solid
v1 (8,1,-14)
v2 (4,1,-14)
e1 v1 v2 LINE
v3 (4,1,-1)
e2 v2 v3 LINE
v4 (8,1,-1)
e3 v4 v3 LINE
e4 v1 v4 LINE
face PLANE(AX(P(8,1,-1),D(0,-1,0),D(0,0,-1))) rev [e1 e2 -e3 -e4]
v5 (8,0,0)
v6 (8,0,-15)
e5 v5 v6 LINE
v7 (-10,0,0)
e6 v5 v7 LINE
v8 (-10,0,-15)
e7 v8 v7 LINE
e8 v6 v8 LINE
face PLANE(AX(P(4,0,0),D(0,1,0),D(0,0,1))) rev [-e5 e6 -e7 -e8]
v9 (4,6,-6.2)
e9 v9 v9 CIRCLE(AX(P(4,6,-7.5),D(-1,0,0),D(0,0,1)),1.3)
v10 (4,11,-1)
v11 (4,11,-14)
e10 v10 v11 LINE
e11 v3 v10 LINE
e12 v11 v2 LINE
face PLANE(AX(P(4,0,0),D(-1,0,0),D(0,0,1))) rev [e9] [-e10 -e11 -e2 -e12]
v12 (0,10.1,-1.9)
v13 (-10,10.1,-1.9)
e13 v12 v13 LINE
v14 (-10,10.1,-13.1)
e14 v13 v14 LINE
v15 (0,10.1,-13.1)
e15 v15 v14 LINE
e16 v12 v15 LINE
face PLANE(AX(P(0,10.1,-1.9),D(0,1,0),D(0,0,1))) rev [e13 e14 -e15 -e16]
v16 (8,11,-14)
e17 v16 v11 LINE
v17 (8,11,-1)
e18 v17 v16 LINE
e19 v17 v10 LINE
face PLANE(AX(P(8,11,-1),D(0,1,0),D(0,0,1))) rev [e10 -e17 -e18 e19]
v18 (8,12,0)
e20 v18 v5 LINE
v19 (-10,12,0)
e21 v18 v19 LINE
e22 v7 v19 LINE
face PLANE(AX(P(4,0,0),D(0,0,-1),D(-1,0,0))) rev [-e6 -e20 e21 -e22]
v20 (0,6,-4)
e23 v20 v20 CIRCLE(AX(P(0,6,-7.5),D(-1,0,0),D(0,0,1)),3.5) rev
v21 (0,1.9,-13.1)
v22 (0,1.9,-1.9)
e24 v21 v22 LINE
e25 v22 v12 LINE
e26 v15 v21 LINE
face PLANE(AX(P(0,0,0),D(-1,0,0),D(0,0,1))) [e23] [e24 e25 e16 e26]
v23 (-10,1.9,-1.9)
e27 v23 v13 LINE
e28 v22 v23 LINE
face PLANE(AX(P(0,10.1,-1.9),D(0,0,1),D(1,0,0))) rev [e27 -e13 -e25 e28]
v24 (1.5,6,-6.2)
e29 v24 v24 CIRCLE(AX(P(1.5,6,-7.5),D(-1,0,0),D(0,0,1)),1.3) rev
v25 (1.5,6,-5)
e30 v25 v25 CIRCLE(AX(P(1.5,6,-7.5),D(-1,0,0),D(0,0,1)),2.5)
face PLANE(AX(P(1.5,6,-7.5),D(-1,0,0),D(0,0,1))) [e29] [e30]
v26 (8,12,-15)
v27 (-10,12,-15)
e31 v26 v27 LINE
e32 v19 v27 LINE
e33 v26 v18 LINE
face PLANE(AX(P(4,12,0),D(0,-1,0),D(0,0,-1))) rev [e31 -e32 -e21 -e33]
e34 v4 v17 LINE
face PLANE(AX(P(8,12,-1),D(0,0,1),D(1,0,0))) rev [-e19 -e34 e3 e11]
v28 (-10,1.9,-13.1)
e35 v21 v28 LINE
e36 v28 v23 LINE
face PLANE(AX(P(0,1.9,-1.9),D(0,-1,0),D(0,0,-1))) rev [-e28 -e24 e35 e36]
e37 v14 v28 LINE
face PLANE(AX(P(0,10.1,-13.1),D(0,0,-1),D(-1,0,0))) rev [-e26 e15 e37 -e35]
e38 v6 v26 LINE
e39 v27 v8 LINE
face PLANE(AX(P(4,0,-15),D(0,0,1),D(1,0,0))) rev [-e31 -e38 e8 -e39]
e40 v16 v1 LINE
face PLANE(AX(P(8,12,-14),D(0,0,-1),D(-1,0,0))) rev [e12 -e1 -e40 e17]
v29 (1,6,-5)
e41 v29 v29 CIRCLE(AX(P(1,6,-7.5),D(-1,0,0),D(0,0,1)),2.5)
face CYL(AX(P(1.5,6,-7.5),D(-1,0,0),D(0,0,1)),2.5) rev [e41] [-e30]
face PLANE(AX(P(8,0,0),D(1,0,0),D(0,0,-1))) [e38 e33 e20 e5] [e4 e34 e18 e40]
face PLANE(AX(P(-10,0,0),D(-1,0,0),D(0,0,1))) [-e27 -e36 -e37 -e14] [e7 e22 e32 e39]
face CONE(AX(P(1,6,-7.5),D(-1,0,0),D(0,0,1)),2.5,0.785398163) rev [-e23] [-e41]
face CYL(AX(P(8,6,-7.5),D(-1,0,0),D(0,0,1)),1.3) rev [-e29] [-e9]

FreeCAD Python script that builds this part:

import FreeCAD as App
import Part
import Sketcher
from FreeCAD import Vector
Q = App.Units.Quantity


def edges_at(feature, points):
    """Names of the edges that pass closest to the given points."""
    edges = feature.Shape.Edges
    near = lambda p: min(range(len(edges)), key=lambda i: edges[i].distToShape(Part.Vertex(*p))[0])
    return sorted({f"Edge{near(p) + 1}" for p in points})


def add_polygon(sketch, points):
    """Adds a closed chain of lines whose ends are joined by coincident constraints."""
    first, n = sketch.GeometryCount, len(points)
    for a, b in zip(points, points[1:] + points[:1]):
        sketch.addGeometry(Part.LineSegment(App.Vector(*a, 0), App.Vector(*b, 0)), False)
    for i in range(n):
        sketch.addConstraint(Sketcher.Constraint("Coincident", first + i, 2, first + (i + 1) % n, 1))

doc = App.newDocument("Part")
body = doc.addObject("PartDesign::Body", "Body")

# Sketch on YZ plane
sketch1 = doc.addObject("Sketcher::SketchObject", "Sketch")
body.addObject(sketch1)
sketch1.AttachmentSupport = (doc.YZ_Plane, [""])
sketch1.MapMode = "FlatFace"
add_polygon(sketch1, [(12, 0), (0, 0), (0, -15), (12, -15)])  # lines 0-3
sketch1.addConstraint(Sketcher.Constraint("Horizontal", 0))
sketch1.addConstraint(Sketcher.Constraint("Vertical", 1))
sketch1.addConstraint(Sketcher.Constraint("Horizontal", 2))
sketch1.addConstraint(Sketcher.Constraint("Vertical", 3))
sketch1.addConstraint(Sketcher.Constraint("Coincident", 0, 2, -1, 1))
sketch1.addConstraint(Sketcher.Constraint("DistanceX", 0, 2, 0, 1, Q("12 mm")))
sketch1.addConstraint(Sketcher.Constraint("DistanceY", 1, 2, 1, 1, Q("15 mm")))
pad1 = doc.addObject("PartDesign::Pad", "Pad")
body.addObject(pad1)
pad1.Profile = sketch1
pad1.Length = 4

# Sketch on YZ plane
sketch2 = doc.addObject("Sketcher::SketchObject", "Sketch001")
body.addObject(sketch2)
sketch2.AttachmentSupport = (doc.YZ_Plane, [""])
sketch2.MapMode = "FlatFace"
sketch2.AttachmentOffset = App.Placement(Vector(0, 0, 4), App.Rotation())
add_polygon(sketch2, [(12, 0), (0, 0), (0, -1), (12, -1)])  # lines 0-3
add_polygon(sketch2, [(12, -14), (0, -14), (0, -15), (12, -15)])  # lines 4-7
sketch2.addConstraint(Sketcher.Constraint("Horizontal", 0))
sketch2.addConstraint(Sketcher.Constraint("Vertical", 1))
sketch2.addConstraint(Sketcher.Constraint("Horizontal", 2))
sketch2.addConstraint(Sketcher.Constraint("Vertical", 3))
sketch2.addConstraint(Sketcher.Constraint("Horizontal", 4))
sketch2.addConstraint(Sketcher.Constraint("Vertical", 5))
sketch2.addConstraint(Sketcher.Constraint("Horizontal", 6))
sketch2.addConstraint(Sketcher.Constraint("Vertical", 7))
sketch2.addConstraint(Sketcher.Constraint("Coincident", 0, 2, -1, 1))
sketch2.addConstraint(Sketcher.Constraint("PointOnObject", 4, 2, -2))
sketch2.addConstraint(Sketcher.Constraint("Vertical", 3, 2, 6, 2))
sketch2.addConstraint(Sketcher.Constraint("Equal", 3, 5))
sketch2.addConstraint(Sketcher.Constraint("DistanceX", 0, 2, 0, 1, Q("12 mm")))
sketch2.addConstraint(Sketcher.Constraint("DistanceY", 1, 2, 1, 1, Q("1 mm")))
sketch2.addConstraint(Sketcher.Constraint("DistanceY", 4, 2, -1, 1, Q("14 mm")))
pad2 = doc.addObject("PartDesign::Pad", "Pad001")
body.addObject(pad2)
pad2.Profile = sketch2
pad2.Length = 4

# Sketch on YZ plane
sketch3 = doc.addObject("Sketcher::SketchObject", "Sketch002")
body.addObject(sketch3)
sketch3.AttachmentSupport = (doc.YZ_Plane, [""])
sketch3.MapMode = "FlatFace"
sketch3.AttachmentOffset = App.Placement(Vector(0, 0, 4), App.Rotation())
add_polygon(sketch3, [(12, -1), (11, -1), (11, -14), (12, -14)])  # lines 0-3
add_polygon(sketch3, [(1, -1), (0, -1), (0, -14), (1, -14)])  # lines 4-7
sketch3.addConstraint(Sketcher.Constraint("Horizontal", 0))
sketch3.addConstraint(Sketcher.Constraint("Vertical", 1))
sketch3.addConstraint(Sketcher.Constraint("Horizontal", 2))
sketch3.addConstraint(Sketcher.Constraint("Vertical", 3))
sketch3.addConstraint(Sketcher.Constraint("Horizontal", 4))
sketch3.addConstraint(Sketcher.Constraint("Vertical", 5))
sketch3.addConstraint(Sketcher.Constraint("Horizontal", 6))
sketch3.addConstraint(Sketcher.Constraint("Vertical", 7))
sketch3.addConstraint(Sketcher.Constraint("PointOnObject", 4, 2, -2))
sketch3.addConstraint(Sketcher.Constraint("Horizontal", 3, 2, 4, 2))
sketch3.addConstraint(Sketcher.Constraint("Horizontal", 2, 2, 5, 2))
sketch3.addConstraint(Sketcher.Constraint("Equal", 2, 4))
sketch3.addConstraint(Sketcher.Constraint("DistanceX", 0, 2, 0, 1, Q("1 mm")))
sketch3.addConstraint(Sketcher.Constraint("DistanceY", 1, 2, 1, 1, Q("13 mm")))
sketch3.addConstraint(Sketcher.Constraint("DistanceX", -1, 1, 0, 2, Q("11 mm")))
sketch3.addConstraint(Sketcher.Constraint("DistanceY", 0, 2, -1, 1, Q("1 mm")))
pad3 = doc.addObject("PartDesign::Pad", "Pad002")
body.addObject(pad3)
pad3.Profile = sketch3
pad3.Length = 4

# Sketch on YZ plane
sketch4 = doc.addObject("Sketcher::SketchObject", "Sketch003")
body.addObject(sketch4)
sketch4.AttachmentSupport = (doc.YZ_Plane, [""])
sketch4.MapMode = "FlatFace"
sketch4.addGeometry(Part.Circle(Vector(6, -7.5, 0), Vector(0, 0, 1), 1.3), False)
sketch4.addConstraint(Sketcher.Constraint("Diameter", 0, Q("2.6 mm")))
sketch4.addConstraint(Sketcher.Constraint("DistanceX", -1, 1, 0, 3, Q("6 mm")))
sketch4.addConstraint(Sketcher.Constraint("DistanceY", 0, 3, -1, 1, Q("7.5 mm")))
pocket1 = doc.addObject("PartDesign::Pocket", "Pocket")
body.addObject(pocket1)
pocket1.Profile = sketch4
pocket1.Type = "ThroughAll"
pocket1.Reversed = True

# Sketch on YZ plane
sketch5 = doc.addObject("Sketcher::SketchObject", "Sketch004")
body.addObject(sketch5)
sketch5.AttachmentSupport = (doc.YZ_Plane, [""])
sketch5.MapMode = "FlatFace"
sketch5.addGeometry(Part.Circle(Vector(6, -7.5, 0), Vector(0, 0, 1), 2.5), False)
sketch5.addConstraint(Sketcher.Constraint("Diameter", 0, Q("5 mm")))
sketch5.addConstraint(Sketcher.Constraint("DistanceX", -1, 1, 0, 3, Q("6 mm")))
sketch5.addConstraint(Sketcher.Constraint("DistanceY", 0, 3, -1, 1, Q("7.5 mm")))
pocket2 = doc.addObject("PartDesign::Pocket", "Pocket001")
body.addObject(pocket2)
pocket2.Profile = sketch5
pocket2.Length = 1.5
pocket2.Reversed = True
doc.recompute()

chamfer = doc.addObject("PartDesign::Chamfer", "Chamfer")
body.addObject(chamfer)
chamfer.Base = (pocket2, edges_at(pocket2, [(0, 6, -10)]))
chamfer.Size = 1

# Sketch on YZ plane
sketch6 = doc.addObject("Sketcher::SketchObject", "Sketch005")
body.addObject(sketch6)
sketch6.AttachmentSupport = (doc.YZ_Plane, [""])
sketch6.MapMode = "FlatFace"
add_polygon(sketch6, [(0, 0), (12, 0), (12, -15), (0, -15)])  # lines 0-3
add_polygon(sketch6, [(2, -2), (2, -13), (10, -13), (10, -2)])  # lines 4-7
sketch6.addConstraint(Sketcher.Constraint("Horizontal", 0))
sketch6.addConstraint(Sketcher.Constraint("Vertical", 1))
sketch6.addConstraint(Sketcher.Constraint("Horizontal", 2))
sketch6.addConstraint(Sketcher.Constraint("Vertical", 3))
sketch6.addConstraint(Sketcher.Constraint("Vertical", 4))
sketch6.addConstraint(Sketcher.Constraint("Horizontal", 5))
sketch6.addConstraint(Sketcher.Constraint("Vertical", 6))
sketch6.addConstraint(Sketcher.Constraint("Horizontal", 7))
sketch6.addConstraint(Sketcher.Constraint("Coincident", 3, 2, -1, 1))
sketch6.addConstraint(Sketcher.Constraint("DistanceX", 0, 1, 0, 2, Q("12 mm")))
sketch6.addConstraint(Sketcher.Constraint("DistanceX", 5, 1, 5, 2, Q("8 mm")))
sketch6.addConstraint(Sketcher.Constraint("DistanceY", 1, 2, 1, 1, Q("15 mm")))
sketch6.addConstraint(Sketcher.Constraint("DistanceY", 4, 2, 4, 1, Q("11 mm")))
sketch6.addConstraint(Sketcher.Constraint("DistanceX", -1, 1, 4, 2, Q("2 mm")))
sketch6.addConstraint(Sketcher.Constraint("DistanceY", 4, 2, -1, 1, Q("13 mm")))
pad4 = doc.addObject("PartDesign::Pad", "Pad003")
body.addObject(pad4)
pad4.Profile = sketch6
pad4.Length = 10
pad4.Reversed = True

# Sketch on YZ plane
sketch7 = doc.addObject("Sketcher::SketchObject", "Sketch006")
body.addObject(sketch7)
sketch7.AttachmentSupport = (doc.YZ_Plane, [""])
sketch7.MapMode = "FlatFace"
sketch7.AttachmentOffset = App.Placement(Vector(0, 0, -10), App.Rotation())
add_polygon(sketch7, [(10.1, -13.1), (1.9, -13.1), (1.9, -1.9), (10.1, -1.9)])  # lines 0-3
sketch7.addConstraint(Sketcher.Constraint("Horizontal", 0))
sketch7.addConstraint(Sketcher.Constraint("Vertical", 1))
sketch7.addConstraint(Sketcher.Constraint("Horizontal", 2))
sketch7.addConstraint(Sketcher.Constraint("Vertical", 3))
sketch7.addConstraint(Sketcher.Constraint("DistanceX", 0, 2, 0, 1, Q("8.2 mm")))
sketch7.addConstraint(Sketcher.Constraint("DistanceY", 1, 1, 1, 2, Q("11.2 mm")))
sketch7.addConstraint(Sketcher.Constraint("DistanceX", -1, 1, 0, 2, Q("1.9 mm")))
sketch7.addConstraint(Sketcher.Constraint("DistanceY", 0, 2, -1, 1, Q("13.1 mm")))
pocket3 = doc.addObject("PartDesign::Pocket", "Pocket002")
body.addObject(pocket3)
pocket3.Profile = sketch7
pocket3.Length = 10
pocket3.Reversed = True

doc.recompute()
